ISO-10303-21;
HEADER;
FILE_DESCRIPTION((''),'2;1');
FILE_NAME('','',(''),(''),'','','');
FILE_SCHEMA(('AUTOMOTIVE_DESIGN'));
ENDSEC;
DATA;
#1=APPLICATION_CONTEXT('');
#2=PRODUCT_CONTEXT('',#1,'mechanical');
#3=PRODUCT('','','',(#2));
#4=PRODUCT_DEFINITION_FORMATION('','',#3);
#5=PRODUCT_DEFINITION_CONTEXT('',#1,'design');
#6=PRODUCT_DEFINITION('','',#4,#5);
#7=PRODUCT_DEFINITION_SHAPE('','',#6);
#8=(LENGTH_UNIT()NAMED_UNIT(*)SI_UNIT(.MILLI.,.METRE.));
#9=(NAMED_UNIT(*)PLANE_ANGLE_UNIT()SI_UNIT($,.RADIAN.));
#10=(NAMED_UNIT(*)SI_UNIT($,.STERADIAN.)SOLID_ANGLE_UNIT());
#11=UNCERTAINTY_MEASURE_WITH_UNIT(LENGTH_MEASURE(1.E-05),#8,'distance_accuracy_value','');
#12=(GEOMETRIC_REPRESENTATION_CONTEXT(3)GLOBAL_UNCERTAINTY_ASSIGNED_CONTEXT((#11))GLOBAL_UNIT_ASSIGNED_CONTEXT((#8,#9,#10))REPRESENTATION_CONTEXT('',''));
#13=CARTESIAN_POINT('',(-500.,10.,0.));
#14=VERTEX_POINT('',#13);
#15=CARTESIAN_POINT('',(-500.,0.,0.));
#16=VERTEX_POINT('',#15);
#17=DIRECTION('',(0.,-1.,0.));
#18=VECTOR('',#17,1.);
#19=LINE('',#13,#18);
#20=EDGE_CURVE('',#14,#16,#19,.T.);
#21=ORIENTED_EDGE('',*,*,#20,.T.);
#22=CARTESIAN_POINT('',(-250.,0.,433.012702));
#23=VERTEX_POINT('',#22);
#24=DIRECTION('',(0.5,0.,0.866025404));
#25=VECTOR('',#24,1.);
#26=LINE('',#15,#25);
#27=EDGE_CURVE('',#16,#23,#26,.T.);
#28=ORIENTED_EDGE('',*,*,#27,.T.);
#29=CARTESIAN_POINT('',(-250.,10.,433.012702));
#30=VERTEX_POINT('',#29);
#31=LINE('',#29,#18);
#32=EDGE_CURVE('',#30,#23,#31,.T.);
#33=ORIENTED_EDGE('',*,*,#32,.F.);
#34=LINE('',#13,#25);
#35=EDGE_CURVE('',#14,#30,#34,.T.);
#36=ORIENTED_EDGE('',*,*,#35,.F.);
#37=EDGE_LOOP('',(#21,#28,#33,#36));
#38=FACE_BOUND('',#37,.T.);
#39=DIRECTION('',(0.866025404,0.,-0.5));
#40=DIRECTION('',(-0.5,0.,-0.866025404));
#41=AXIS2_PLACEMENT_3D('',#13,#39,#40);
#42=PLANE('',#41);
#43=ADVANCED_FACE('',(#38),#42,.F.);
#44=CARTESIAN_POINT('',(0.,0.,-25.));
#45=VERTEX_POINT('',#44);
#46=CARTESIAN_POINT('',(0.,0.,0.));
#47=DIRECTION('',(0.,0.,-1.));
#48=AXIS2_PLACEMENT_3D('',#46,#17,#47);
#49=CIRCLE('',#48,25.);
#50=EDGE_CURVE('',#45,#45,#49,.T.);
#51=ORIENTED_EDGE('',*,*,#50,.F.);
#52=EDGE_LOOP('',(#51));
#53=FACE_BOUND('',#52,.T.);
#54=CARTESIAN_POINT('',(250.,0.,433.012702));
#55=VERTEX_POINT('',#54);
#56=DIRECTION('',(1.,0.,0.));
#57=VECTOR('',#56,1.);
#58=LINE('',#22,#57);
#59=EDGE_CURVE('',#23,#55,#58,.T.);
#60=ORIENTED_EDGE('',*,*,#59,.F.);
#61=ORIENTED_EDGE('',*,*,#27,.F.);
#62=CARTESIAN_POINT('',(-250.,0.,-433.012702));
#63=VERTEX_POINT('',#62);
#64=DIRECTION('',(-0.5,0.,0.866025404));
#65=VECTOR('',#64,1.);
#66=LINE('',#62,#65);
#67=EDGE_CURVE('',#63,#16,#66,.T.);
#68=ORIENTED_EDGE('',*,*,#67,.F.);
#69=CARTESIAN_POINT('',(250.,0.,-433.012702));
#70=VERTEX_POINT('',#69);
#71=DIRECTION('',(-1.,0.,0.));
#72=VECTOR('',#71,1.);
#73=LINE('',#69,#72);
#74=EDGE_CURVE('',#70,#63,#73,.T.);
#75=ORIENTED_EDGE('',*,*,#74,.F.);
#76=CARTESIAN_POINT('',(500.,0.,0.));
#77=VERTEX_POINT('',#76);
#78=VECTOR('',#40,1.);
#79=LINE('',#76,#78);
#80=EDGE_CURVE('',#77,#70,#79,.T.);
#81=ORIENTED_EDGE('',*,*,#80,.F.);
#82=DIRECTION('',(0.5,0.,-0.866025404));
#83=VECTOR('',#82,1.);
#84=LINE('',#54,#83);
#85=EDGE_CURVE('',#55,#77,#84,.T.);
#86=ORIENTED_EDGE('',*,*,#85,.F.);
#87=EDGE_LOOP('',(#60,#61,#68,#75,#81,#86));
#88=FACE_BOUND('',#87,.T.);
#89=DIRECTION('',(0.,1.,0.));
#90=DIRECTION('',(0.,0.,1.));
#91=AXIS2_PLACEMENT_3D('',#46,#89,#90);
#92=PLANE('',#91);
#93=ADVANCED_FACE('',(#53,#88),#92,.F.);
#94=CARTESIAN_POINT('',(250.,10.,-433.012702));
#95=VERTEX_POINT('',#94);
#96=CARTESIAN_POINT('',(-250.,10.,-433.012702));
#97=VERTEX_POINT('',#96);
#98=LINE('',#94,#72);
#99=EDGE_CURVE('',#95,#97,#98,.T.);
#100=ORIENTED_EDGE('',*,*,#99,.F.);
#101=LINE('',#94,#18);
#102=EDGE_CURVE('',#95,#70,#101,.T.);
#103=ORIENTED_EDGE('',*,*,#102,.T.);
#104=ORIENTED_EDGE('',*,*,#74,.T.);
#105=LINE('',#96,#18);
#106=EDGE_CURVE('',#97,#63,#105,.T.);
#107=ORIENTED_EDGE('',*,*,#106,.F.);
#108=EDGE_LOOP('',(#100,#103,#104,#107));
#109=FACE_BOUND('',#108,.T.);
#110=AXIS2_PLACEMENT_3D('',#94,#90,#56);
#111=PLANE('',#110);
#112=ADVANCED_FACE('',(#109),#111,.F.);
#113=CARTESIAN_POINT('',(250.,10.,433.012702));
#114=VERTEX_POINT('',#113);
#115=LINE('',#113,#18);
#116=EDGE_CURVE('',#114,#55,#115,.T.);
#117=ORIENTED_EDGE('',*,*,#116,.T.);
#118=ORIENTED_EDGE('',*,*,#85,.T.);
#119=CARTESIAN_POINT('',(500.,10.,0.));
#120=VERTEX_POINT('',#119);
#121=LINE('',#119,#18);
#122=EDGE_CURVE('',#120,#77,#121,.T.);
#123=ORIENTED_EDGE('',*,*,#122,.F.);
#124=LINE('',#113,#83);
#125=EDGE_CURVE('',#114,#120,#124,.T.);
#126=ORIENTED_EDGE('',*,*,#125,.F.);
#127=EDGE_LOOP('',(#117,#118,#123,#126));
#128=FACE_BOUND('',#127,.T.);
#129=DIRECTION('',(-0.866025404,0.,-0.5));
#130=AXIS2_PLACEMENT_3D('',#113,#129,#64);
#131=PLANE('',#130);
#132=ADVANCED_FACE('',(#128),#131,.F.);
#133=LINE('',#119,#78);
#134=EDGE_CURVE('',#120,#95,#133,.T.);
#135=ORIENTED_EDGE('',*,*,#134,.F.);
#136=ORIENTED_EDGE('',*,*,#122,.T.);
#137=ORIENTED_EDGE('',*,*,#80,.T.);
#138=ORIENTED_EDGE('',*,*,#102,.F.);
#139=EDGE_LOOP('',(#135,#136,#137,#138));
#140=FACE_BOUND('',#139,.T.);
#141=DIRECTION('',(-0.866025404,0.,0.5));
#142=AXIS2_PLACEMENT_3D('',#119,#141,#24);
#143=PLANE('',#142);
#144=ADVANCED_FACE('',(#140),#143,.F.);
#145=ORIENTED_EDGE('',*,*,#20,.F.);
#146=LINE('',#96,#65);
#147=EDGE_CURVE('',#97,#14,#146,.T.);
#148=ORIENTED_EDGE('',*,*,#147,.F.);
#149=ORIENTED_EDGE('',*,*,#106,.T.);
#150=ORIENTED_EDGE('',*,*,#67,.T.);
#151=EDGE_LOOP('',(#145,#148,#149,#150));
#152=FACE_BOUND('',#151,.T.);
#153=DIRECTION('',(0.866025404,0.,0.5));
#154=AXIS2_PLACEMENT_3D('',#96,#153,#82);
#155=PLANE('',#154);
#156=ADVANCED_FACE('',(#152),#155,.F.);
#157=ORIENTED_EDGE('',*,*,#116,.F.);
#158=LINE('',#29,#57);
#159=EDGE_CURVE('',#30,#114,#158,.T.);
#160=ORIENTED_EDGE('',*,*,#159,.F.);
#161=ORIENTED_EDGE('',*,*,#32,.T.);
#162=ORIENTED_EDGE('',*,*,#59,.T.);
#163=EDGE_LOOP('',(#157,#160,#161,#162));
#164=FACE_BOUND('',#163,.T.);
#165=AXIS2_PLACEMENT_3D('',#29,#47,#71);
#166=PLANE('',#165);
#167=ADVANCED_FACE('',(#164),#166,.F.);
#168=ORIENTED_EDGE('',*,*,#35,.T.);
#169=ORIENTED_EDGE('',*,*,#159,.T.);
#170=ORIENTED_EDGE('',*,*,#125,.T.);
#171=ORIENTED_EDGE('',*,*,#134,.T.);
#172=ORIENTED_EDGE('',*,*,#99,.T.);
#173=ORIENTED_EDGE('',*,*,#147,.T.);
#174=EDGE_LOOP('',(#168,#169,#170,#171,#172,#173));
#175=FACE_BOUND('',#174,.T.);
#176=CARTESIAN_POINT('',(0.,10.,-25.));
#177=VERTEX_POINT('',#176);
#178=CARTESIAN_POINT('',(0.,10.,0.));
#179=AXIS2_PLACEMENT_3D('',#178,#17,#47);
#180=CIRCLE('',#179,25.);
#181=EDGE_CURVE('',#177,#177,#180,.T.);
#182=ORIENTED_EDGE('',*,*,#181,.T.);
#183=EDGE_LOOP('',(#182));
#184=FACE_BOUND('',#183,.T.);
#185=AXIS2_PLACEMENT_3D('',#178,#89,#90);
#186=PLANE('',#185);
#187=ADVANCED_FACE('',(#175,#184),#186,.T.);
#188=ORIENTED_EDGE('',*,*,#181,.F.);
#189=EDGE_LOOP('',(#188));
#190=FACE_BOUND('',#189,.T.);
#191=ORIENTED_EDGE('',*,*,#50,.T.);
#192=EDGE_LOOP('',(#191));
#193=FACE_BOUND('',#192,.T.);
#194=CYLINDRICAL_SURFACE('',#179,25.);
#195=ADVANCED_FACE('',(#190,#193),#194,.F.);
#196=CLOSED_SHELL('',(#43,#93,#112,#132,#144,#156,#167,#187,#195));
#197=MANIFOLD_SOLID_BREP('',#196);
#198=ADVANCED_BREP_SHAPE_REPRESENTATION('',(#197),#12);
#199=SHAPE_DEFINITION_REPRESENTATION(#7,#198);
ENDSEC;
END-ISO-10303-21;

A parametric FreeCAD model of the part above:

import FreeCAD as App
import Part
import Sketcher

V = App.Vector
Q = App.Units.Quantity


def add_polygon(sketch, points):
    """Adds a closed chain of lines whose ends are joined by coincident constraints."""
    first, n = sketch.GeometryCount, len(points)
    for a, b in zip(points, points[1:] + points[:1]):
        sketch.addGeometry(Part.LineSegment(App.Vector(*a, 0), App.Vector(*b, 0)), False)
    for i in range(n):
        sketch.addConstraint(Sketcher.Constraint("Coincident", first + i, 2, first + (i + 1) % n, 1))

doc = App.newDocument("Part")
params = doc.addObject("Spreadsheet::Sheet", "Params")
for row, (alias, value) in enumerate([
    ("sketch1_width", "500 mm"),
    ("sketch1_length", "500 mm"),
    ("pad1_length", "10 mm"),
    ("sketch2_diameter", "50 mm"),
], start=1):
    params.set(f"A{row}", alias)
    params.set(f"B{row}", "=" + value)
    params.setAlias(f"B{row}", alias)

body = doc.addObject("PartDesign::Body", "Body")

# Sketch on XZ plane
sketch1 = body.newObject("Sketcher::SketchObject", "Sketch")
sketch1.AttachmentSupport = (doc.getObject("XZ_Plane"), [""])
sketch1.MapMode = "FlatFace"
add_polygon(sketch1, [(500, 0), (250, -433), (-250, -433), (-500, 0), (-250, 433), (250, 433)])  # lines 0-5
sketch1.addConstraint(Sketcher.Constraint("Horizontal", 1))
sketch1.addConstraint(Sketcher.Constraint("Horizontal", 4))
sketch1.addConstraint(Sketcher.Constraint("Symmetric", 0, 2, 3, 2, -1, 1))
sketch1.addConstraint(Sketcher.Constraint("Symmetric", 2, 2, 5, 2, -1, 1))
sketch1.addConstraint(Sketcher.Constraint("PointOnObject", 2, 2, -1))
sketch1.addConstraint(Sketcher.Constraint("Parallel", 2, 5))
sketch1.addConstraint(Sketcher.Constraint("Vertical", 1, 2, 3, 2))
sketch1.addConstraint(Sketcher.Constraint("DistanceX", 1, 2, 1, 1, Q("500 mm")))
sketch1.addConstraint(Sketcher.Constraint("Angle", 0, Q("-120 deg")))
sketch1.addConstraint(Sketcher.Constraint("Distance", 0, Q("500 mm")))
sketch1.setExpression("Constraints[13]", "Params.sketch1_width")
sketch1.setExpression("Constraints[15]", "Params.sketch1_length")
pad1 = body.newObject("PartDesign::Pad", "Pad")
pad1.Profile = sketch1
pad1.setExpression("Length", "Params.pad1_length")
pad1.Reversed = True

# Sketch on XZ plane
sketch2 = body.newObject("Sketcher::SketchObject", "Sketch001")
sketch2.AttachmentSupport = (doc.getObject("XZ_Plane"), [""])
sketch2.MapMode = "FlatFace"
sketch2.addGeometry(Part.Circle(V(0, 0, 0), V(0, 0, 1), 25), False)
sketch2.addConstraint(Sketcher.Constraint("Coincident", 0, 3, -1, 1))
sketch2.addConstraint(Sketcher.Constraint("Diameter", 0, Q("50 mm")))
sketch2.setExpression("Constraints[1]", "Params.sketch2_diameter")
pocket1 = body.newObject("PartDesign::Pocket", "Pocket")
pocket1.Profile = sketch2
pocket1.Type = "ThroughAll"

doc.recompute()
